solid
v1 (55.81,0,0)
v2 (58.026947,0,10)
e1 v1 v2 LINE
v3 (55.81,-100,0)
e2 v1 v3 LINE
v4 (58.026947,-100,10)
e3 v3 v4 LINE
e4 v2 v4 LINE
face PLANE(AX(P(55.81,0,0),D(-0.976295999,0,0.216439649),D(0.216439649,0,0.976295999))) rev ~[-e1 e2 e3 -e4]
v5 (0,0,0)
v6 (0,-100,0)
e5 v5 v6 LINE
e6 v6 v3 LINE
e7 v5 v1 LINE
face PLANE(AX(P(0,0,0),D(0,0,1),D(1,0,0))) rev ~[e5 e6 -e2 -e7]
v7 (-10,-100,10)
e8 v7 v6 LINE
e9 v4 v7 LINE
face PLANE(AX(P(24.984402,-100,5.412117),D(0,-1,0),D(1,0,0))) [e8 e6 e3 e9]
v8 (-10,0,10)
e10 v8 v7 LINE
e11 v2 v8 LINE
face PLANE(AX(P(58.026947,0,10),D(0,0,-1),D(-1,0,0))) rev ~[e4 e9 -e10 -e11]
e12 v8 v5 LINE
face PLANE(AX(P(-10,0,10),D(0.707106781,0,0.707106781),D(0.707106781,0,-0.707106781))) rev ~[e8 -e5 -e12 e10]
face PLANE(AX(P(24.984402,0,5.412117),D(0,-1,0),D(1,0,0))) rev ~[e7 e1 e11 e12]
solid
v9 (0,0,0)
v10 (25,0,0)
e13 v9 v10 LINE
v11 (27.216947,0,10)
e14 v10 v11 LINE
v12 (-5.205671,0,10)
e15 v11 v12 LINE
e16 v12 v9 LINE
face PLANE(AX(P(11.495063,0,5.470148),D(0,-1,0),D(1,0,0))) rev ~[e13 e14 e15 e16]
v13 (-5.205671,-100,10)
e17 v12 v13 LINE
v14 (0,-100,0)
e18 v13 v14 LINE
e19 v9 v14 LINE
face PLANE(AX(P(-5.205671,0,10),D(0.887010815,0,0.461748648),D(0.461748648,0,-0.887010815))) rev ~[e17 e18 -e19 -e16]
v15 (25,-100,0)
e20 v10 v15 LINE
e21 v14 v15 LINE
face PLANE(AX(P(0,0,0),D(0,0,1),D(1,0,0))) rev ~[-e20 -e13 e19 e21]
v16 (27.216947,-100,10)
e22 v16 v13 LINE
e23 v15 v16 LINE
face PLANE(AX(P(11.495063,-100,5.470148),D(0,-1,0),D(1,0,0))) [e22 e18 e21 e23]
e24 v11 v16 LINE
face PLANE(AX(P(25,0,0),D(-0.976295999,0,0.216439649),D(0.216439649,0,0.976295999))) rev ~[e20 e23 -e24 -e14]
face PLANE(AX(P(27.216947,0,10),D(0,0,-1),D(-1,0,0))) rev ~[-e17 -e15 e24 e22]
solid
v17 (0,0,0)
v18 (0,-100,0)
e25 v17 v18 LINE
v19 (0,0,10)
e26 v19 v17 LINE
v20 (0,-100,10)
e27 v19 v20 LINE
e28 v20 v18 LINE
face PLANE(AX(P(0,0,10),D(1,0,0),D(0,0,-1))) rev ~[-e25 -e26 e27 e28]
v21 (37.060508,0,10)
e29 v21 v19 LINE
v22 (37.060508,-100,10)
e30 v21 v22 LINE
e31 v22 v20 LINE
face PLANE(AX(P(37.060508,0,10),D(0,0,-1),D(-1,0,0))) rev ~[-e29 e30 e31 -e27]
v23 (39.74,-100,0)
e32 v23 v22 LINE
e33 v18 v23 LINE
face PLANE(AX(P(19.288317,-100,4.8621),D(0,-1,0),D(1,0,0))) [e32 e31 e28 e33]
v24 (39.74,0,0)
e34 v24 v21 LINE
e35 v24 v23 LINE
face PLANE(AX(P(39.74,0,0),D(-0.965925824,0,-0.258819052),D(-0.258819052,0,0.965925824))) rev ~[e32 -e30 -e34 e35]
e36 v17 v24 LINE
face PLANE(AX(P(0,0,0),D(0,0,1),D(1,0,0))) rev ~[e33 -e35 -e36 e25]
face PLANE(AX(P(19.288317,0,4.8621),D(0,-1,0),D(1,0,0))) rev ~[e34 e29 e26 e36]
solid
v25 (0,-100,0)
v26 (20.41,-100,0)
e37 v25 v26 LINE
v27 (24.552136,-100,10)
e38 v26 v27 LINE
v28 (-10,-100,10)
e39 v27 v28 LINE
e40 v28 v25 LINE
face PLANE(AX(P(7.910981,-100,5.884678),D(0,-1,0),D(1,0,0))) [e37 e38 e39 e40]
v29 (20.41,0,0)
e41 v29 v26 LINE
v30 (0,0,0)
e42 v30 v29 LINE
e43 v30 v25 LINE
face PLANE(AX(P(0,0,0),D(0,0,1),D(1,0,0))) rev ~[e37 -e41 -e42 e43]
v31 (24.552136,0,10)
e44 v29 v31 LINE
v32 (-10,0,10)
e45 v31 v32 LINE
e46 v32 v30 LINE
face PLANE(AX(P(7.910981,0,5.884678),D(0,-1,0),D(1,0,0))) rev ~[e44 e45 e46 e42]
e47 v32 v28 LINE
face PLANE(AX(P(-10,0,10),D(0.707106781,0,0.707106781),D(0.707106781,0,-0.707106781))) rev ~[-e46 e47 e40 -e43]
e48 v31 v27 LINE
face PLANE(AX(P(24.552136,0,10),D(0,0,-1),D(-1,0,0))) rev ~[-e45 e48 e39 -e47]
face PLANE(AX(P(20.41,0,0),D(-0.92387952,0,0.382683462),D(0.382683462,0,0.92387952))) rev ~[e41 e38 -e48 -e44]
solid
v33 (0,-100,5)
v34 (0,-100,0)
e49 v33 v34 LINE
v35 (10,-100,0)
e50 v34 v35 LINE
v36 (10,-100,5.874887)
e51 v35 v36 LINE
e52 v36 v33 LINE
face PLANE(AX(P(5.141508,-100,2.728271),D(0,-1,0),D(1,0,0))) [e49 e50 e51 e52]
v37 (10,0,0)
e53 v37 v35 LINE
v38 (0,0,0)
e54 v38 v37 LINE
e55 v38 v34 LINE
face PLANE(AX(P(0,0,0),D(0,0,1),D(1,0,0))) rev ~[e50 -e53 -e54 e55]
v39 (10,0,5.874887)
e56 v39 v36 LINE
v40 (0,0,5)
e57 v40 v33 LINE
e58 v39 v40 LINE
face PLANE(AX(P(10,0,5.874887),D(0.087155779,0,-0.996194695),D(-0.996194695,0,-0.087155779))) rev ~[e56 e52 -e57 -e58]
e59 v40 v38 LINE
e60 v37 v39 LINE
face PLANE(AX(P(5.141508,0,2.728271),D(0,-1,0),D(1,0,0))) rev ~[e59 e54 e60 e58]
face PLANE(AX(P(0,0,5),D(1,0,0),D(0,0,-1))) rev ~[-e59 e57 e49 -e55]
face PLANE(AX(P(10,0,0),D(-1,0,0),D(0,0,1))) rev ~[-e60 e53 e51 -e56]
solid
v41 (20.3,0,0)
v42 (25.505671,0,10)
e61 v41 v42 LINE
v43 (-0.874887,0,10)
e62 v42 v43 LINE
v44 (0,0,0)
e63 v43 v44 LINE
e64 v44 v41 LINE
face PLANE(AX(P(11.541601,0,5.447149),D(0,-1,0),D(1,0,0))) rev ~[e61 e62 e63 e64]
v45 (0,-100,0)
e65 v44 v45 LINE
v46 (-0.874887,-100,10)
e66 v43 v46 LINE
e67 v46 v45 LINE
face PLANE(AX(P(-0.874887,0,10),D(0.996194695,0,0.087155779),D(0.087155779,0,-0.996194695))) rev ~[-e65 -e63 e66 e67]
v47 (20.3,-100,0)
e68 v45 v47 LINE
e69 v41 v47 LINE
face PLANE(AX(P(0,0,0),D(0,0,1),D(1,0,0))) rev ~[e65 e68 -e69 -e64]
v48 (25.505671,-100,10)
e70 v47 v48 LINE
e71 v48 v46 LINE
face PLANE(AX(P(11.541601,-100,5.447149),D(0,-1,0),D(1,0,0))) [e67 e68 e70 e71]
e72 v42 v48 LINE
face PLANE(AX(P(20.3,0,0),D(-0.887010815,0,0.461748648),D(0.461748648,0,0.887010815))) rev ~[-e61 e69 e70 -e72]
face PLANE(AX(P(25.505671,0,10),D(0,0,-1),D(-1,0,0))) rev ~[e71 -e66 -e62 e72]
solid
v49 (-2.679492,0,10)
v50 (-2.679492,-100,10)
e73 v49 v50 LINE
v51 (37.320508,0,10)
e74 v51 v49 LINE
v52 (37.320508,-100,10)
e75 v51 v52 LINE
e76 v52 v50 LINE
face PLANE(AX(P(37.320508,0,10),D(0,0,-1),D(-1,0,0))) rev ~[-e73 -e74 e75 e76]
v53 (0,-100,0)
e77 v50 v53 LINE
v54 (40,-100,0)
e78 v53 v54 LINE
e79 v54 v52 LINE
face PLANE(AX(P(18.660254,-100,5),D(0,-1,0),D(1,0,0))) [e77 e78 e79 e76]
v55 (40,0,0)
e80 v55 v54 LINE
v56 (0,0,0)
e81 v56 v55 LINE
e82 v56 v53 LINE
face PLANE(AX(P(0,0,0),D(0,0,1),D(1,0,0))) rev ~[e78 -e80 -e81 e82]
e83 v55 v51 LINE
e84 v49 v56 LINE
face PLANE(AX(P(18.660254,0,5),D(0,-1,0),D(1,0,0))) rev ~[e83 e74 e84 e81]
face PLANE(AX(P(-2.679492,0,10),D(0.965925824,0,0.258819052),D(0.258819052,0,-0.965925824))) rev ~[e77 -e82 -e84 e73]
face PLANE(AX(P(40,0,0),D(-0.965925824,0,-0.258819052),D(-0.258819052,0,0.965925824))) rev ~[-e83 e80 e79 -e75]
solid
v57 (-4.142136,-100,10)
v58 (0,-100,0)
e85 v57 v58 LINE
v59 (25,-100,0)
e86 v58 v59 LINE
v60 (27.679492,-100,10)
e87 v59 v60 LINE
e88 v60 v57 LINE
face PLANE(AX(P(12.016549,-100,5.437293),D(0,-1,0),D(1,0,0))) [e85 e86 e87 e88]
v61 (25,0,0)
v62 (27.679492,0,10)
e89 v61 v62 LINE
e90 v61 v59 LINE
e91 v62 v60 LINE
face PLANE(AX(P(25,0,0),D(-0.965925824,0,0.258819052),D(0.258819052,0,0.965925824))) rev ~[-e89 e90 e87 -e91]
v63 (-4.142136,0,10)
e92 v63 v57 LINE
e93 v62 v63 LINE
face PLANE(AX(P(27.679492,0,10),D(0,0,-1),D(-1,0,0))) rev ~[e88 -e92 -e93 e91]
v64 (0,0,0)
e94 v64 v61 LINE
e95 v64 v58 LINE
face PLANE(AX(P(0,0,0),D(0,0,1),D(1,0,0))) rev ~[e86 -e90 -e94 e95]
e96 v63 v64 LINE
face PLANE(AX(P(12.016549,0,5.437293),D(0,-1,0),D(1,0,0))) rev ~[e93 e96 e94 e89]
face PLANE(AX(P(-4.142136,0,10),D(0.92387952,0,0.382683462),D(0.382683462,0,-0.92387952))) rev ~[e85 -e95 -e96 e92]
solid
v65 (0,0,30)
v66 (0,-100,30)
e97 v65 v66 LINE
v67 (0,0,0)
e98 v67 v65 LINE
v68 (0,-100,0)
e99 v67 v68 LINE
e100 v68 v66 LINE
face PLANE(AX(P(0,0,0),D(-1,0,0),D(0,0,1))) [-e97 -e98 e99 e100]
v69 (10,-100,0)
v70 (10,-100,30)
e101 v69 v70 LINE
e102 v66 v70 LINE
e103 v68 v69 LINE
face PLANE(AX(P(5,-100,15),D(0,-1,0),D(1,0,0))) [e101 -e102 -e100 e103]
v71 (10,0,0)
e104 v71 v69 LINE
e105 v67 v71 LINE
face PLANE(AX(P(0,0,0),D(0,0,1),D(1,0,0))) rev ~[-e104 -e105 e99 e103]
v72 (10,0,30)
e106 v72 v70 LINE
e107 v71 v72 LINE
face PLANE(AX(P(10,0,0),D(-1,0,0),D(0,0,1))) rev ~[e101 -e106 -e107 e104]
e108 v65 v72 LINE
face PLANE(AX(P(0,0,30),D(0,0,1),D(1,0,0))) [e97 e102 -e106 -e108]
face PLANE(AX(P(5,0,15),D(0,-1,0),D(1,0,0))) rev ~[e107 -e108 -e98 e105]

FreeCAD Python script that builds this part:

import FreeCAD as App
import Part
import Sketcher
from FreeCAD import Vector
Q = App.Units.Quantity

doc = App.newDocument("Part")
body = doc.addObject("PartDesign::Body", "Body")

sketch1 = doc.addObject("Sketcher::SketchObject", "Sketch")
body.addObject(sketch1)
sketch1.AttachmentSupport = (doc.XZ_Plane, [""])
sketch1.MapMode = "FlatFace"
sketch1.addGeometry(Part.LineSegment(Vector(0, 30, 0), Vector(0, 0, 0)), False)
sketch1.addGeometry(Part.LineSegment(Vector(0, 0, 0), Vector(10, 0, 0)), False)
sketch1.addGeometry(Part.LineSegment(Vector(10, 0, 0), Vector(10, 30, 0)), False)
sketch1.addGeometry(Part.LineSegment(Vector(10, 30, 0), Vector(0, 30, 0)), False)
sketch1.addConstraint(Sketcher.Constraint("Coincident", 0, 2, 1, 1))
sketch1.addConstraint(Sketcher.Constraint("Coincident", 1, 2, 2, 1))
sketch1.addConstraint(Sketcher.Constraint("Coincident", 2, 2, 3, 1))
sketch1.addConstraint(Sketcher.Constraint("Coincident", 3, 2, 0, 1))
sketch1.addConstraint(Sketcher.Constraint("Vertical", 0))
sketch1.addConstraint(Sketcher.Constraint("Horizontal", 1))
sketch1.addConstraint(Sketcher.Constraint("Vertical", 2))
sketch1.addConstraint(Sketcher.Constraint("Horizontal", 3))
sketch1.addConstraint(Sketcher.Constraint("Coincident", 0, 2, -1, 1))
sketch1.addConstraint(Sketcher.Constraint("DistanceX", 1, 1, 1, 2, Q("10 mm")))
sketch1.addConstraint(Sketcher.Constraint("DistanceY", 0, 2, 0, 1, Q("30 mm")))
pad1 = doc.addObject("PartDesign::Pad", "Pad")
body.addObject(pad1)
pad1.Profile = sketch1
pad1.Length = 100
body2 = doc.addObject("PartDesign::Body", "Body001")

sketch2 = doc.addObject("Sketcher::SketchObject", "Sketch001")
body2.addObject(sketch2)
sketch2.AttachmentSupport = (doc.getObject("XZ_Plane001"), [""])
sketch2.MapMode = "FlatFace"
sketch2.addGeometry(Part.LineSegment(Vector(0, 10, 0), Vector(0, 0, 0)), False)
sketch2.addGeometry(Part.LineSegment(Vector(0, 0, 0), Vector(40, 0, 0)), False)
sketch2.addGeometry(Part.LineSegment(Vector(40, 0, 0), Vector(37, 10, 0)), False)
sketch2.addGeometry(Part.LineSegment(Vector(37, 10, 0), Vector(0, 10, 0)), False)
sketch2.addConstraint(Sketcher.Constraint("Coincident", 0, 2, 1, 1))
sketch2.addConstraint(Sketcher.Constraint("Coincident", 1, 2, 2, 1))
sketch2.addConstraint(Sketcher.Constraint("Coincident", 2, 2, 3, 1))
sketch2.addConstraint(Sketcher.Constraint("Coincident", 3, 2, 0, 1))
sketch2.addConstraint(Sketcher.Constraint("Vertical", 0))
sketch2.addConstraint(Sketcher.Constraint("Horizontal", 1))
sketch2.addConstraint(Sketcher.Constraint("Horizontal", 3))
sketch2.addConstraint(Sketcher.Constraint("Coincident", 0, 2, -1, 1))
sketch2.addConstraint(Sketcher.Constraint("DistanceY", 0, 2, 0, 1, Q("10 mm")))
sketch2.addConstraint(Sketcher.Constraint("Angle", 2, Q("105 deg")))
sketch2.addConstraint(Sketcher.Constraint("DistanceX", 1, 1, 1, 2, Q("39.74 mm")))
pad2 = doc.addObject("PartDesign::Pad", "Pad001")
body2.addObject(pad2)
pad2.Profile = sketch2
pad2.Length = 100
body3 = doc.addObject("PartDesign::Body", "Body002")

sketch3 = doc.addObject("Sketcher::SketchObject", "Sketch002")
body3.addObject(sketch3)
sketch3.AttachmentSupport = (doc.getObject("XZ_Plane002"), [""])
sketch3.MapMode = "FlatFace"
sketch3.addGeometry(Part.LineSegment(Vector(-4, 10, 0), Vector(0, 0, 0)), False)
sketch3.addGeometry(Part.LineSegment(Vector(0, 0, 0), Vector(25, 0, 0)), False)
sketch3.addGeometry(Part.LineSegment(Vector(25, 0, 0), Vector(28, 10, 0)), False)
sketch3.addGeometry(Part.LineSegment(Vector(28, 10, 0), Vector(-4, 10, 0)), False)
sketch3.addConstraint(Sketcher.Constraint("Coincident", 0, 2, 1, 1))
sketch3.addConstraint(Sketcher.Constraint("Coincident", 1, 2, 2, 1))
sketch3.addConstraint(Sketcher.Constraint("Coincident", 2, 2, 3, 1))
sketch3.addConstraint(Sketcher.Constraint("Coincident", 3, 2, 0, 1))
sketch3.addConstraint(Sketcher.Constraint("Horizontal", 1))
sketch3.addConstraint(Sketcher.Constraint("Horizontal", 3))
sketch3.addConstraint(Sketcher.Constraint("Coincident", 0, 2, -1, 1))
sketch3.addConstraint(Sketcher.Constraint("DistanceX", 1, 1, 1, 2, Q("25 mm")))
sketch3.addConstraint(Sketcher.Constraint("Angle", 2, Q("75 deg")))
sketch3.addConstraint(Sketcher.Constraint("DistanceY", -1, 1, 2, 2, Q("10 mm")))
sketch3.addConstraint(Sketcher.Constraint("Angle", 0, Q("-67.499998 deg")))
pad3 = doc.addObject("PartDesign::Pad", "Pad002")
body3.addObject(pad3)
pad3.Profile = sketch3
pad3.Length = 100
body4 = doc.addObject("PartDesign::Body", "Body003")

sketch4 = doc.addObject("Sketcher::SketchObject", "Sketch003")
body4.addObject(sketch4)
sketch4.AttachmentSupport = (doc.getObject("XZ_Plane003"), [""])
sketch4.MapMode = "FlatFace"
sketch4.addGeometry(Part.LineSegment(Vector(-3, 10, 0), Vector(0, 0, 0)), False)
sketch4.addGeometry(Part.LineSegment(Vector(0, 0, 0), Vector(40, 0, 0)), False)
sketch4.addGeometry(Part.LineSegment(Vector(40, 0, 0), Vector(37, 10, 0)), False)
sketch4.addGeometry(Part.LineSegment(Vector(37, 10, 0), Vector(-3, 10, 0)), False)
sketch4.addConstraint(Sketcher.Constraint("Coincident", 0, 2, 1, 1))
sketch4.addConstraint(Sketcher.Constraint("Coincident", 1, 2, 2, 1))
sketch4.addConstraint(Sketcher.Constraint("Coincident", 2, 2, 3, 1))
sketch4.addConstraint(Sketcher.Constraint("Coincident", 3, 2, 0, 1))
sketch4.addConstraint(Sketcher.Constraint("Horizontal", 1))
sketch4.addConstraint(Sketcher.Constraint("Horizontal", 3))
sketch4.addConstraint(Sketcher.Constraint("Coincident", 0, 2, -1, 1))
sketch4.addConstraint(Sketcher.Constraint("Parallel", 0, 2))
sketch4.addConstraint(Sketcher.Constraint("DistanceX", 1, 1, 1, 2, Q("40 mm")))
sketch4.addConstraint(Sketcher.Constraint("Angle", 0, Q("-75 deg")))
sketch4.addConstraint(Sketcher.Constraint("DistanceY", -1, 1, 2, 2, Q("10 mm")))
pad4 = doc.addObject("PartDesign::Pad", "Pad003")
body4.addObject(pad4)
pad4.Profile = sketch4
pad4.Length = 100
body5 = doc.addObject("PartDesign::Body", "Body004")

sketch5 = doc.addObject("Sketcher::SketchObject", "Sketch004")
body5.addObject(sketch5)
sketch5.AttachmentSupport = (doc.getObject("XZ_Plane004"), [""])
sketch5.MapMode = "FlatFace"
sketch5.addGeometry(Part.LineSegment(Vector(-10, 10, 0), Vector(0, 0, 0)), False)
sketch5.addGeometry(Part.LineSegment(Vector(0, 0, 0), Vector(20, 0, 0)), False)
sketch5.addGeometry(Part.LineSegment(Vector(20, 0, 0), Vector(25, 10, 0)), False)
sketch5.addGeometry(Part.LineSegment(Vector(25, 10, 0), Vector(-10, 10, 0)), False)
sketch5.addConstraint(Sketcher.Constraint("Coincident", 0, 2, 1, 1))
sketch5.addConstraint(Sketcher.Constraint("Coincident", 1, 2, 2, 1))
sketch5.addConstraint(Sketcher.Constraint("Coincident", 2, 2, 3, 1))
sketch5.addConstraint(Sketcher.Constraint("Coincident", 3, 2, 0, 1))
sketch5.addConstraint(Sketcher.Constraint("Horizontal", 1))
sketch5.addConstraint(Sketcher.Constraint("Horizontal", 3))
sketch5.addConstraint(Sketcher.Constraint("Coincident", 0, 2, -1, 1))
sketch5.addConstraint(Sketcher.Constraint("Angle", 0, Q("-45 deg")))
sketch5.addConstraint(Sketcher.Constraint("DistanceY", -1, 1, 2, 2, Q("10 mm")))
sketch5.addConstraint(Sketcher.Constraint("Angle", 2, Q("67.499998 deg")))
sketch5.addConstraint(Sketcher.Constraint("DistanceX", 1, 1, 1, 2, Q("20.41 mm")))
pad5 = doc.addObject("PartDesign::Pad", "Pad004")
body5.addObject(pad5)
pad5.Profile = sketch5
pad5.Length = 100
body6 = doc.addObject("PartDesign::Body", "Body005")

sketch6 = doc.addObject("Sketcher::SketchObject", "Sketch005")
body6.addObject(sketch6)
sketch6.AttachmentSupport = (doc.getObject("XZ_Plane005"), [""])
sketch6.MapMode = "FlatFace"
sketch6.addGeometry(Part.LineSegment(Vector(-10, 10, 0), Vector(0, 0, 0)), False)
sketch6.addGeometry(Part.LineSegment(Vector(0, 0, 0), Vector(56, 0, 0)), False)
sketch6.addGeometry(Part.LineSegment(Vector(56, 0, 0), Vector(58, 10, 0)), False)
sketch6.addGeometry(Part.LineSegment(Vector(58, 10, 0), Vector(-10, 10, 0)), False)
sketch6.addConstraint(Sketcher.Constraint("Coincident", 0, 2, 1, 1))
sketch6.addConstraint(Sketcher.Constraint("Coincident", 1, 2, 2, 1))
sketch6.addConstraint(Sketcher.Constraint("Coincident", 2, 2, 3, 1))
sketch6.addConstraint(Sketcher.Constraint("Coincident", 3, 2, 0, 1))
sketch6.addConstraint(Sketcher.Constraint("Horizontal", 1))
sketch6.addConstraint(Sketcher.Constraint("Horizontal", 3))
sketch6.addConstraint(Sketcher.Constraint("Coincident", 0, 2, -1, 1))
sketch6.addConstraint(Sketcher.Constraint("Angle", 0, Q("-45 deg")))
sketch6.addConstraint(Sketcher.Constraint("DistanceY", -1, 1, 2, 2, Q("10 mm")))
sketch6.addConstraint(Sketcher.Constraint("Angle", 2, Q("77.499998 deg")))
sketch6.addConstraint(Sketcher.Constraint("DistanceX", 1, 1, 1, 2, Q("55.81 mm")))
pad6 = doc.addObject("PartDesign::Pad", "Pad005")
body6.addObject(pad6)
pad6.Profile = sketch6
pad6.Length = 100
body7 = doc.addObject("PartDesign::Body", "Body006")

sketch7 = doc.addObject("Sketcher::SketchObject", "Sketch006")
body7.addObject(sketch7)
sketch7.AttachmentSupport = (doc.getObject("XZ_Plane006"), [""])
sketch7.MapMode = "FlatFace"
sketch7.addGeometry(Part.LineSegment(Vector(-5, 10, 0), Vector(0, 0, 0)), False)
sketch7.addGeometry(Part.LineSegment(Vector(0, 0, 0), Vector(25, 0, 0)), False)
sketch7.addGeometry(Part.LineSegment(Vector(25, 0, 0), Vector(27, 10, 0)), False)
sketch7.addGeometry(Part.LineSegment(Vector(27, 10, 0), Vector(-5, 10, 0)), False)
sketch7.addConstraint(Sketcher.Constraint("Coincident", 0, 2, 1, 1))
sketch7.addConstraint(Sketcher.Constraint("Coincident", 1, 2, 2, 1))
sketch7.addConstraint(Sketcher.Constraint("Coincident", 2, 2, 3, 1))
sketch7.addConstraint(Sketcher.Constraint("Coincident", 3, 2, 0, 1))
sketch7.addConstraint(Sketcher.Constraint("Horizontal", 1))
sketch7.addConstraint(Sketcher.Constraint("Horizontal", 3))
sketch7.addConstraint(Sketcher.Constraint("Coincident", 0, 2, -1, 1))
sketch7.addConstraint(Sketcher.Constraint("DistanceX", 1, 1, 1, 2, Q("25 mm")))
sketch7.addConstraint(Sketcher.Constraint("DistanceY", -1, 1, 2, 2, Q("10 mm")))
sketch7.addConstraint(Sketcher.Constraint("Angle", 0, Q("-62.499998 deg")))
sketch7.addConstraint(Sketcher.Constraint("Angle", 2, Q("77.499998 deg")))
pad7 = doc.addObject("PartDesign::Pad", "Pad006")
body7.addObject(pad7)
pad7.Profile = sketch7
pad7.Length = 100
body8 = doc.addObject("PartDesign::Body", "Body007")

sketch8 = doc.addObject("Sketcher::SketchObject", "Sketch007")
body8.addObject(sketch8)
sketch8.AttachmentSupport = (doc.getObject("XZ_Plane007"), [""])
sketch8.MapMode = "FlatFace"
sketch8.addGeometry(Part.LineSegment(Vector(-1, 10, 0), Vector(0, 0, 0)), False)
sketch8.addGeometry(Part.LineSegment(Vector(0, 0, 0), Vector(20, 0, 0)), False)
sketch8.addGeometry(Part.LineSegment(Vector(20, 0, 0), Vector(26, 10, 0)), False)
sketch8.addGeometry(Part.LineSegment(Vector(26, 10, 0), Vector(-1, 10, 0)), False)
sketch8.addConstraint(Sketcher.Constraint("Coincident", 0, 2, 1, 1))
sketch8.addConstraint(Sketcher.Constraint("Coincident", 1, 2, 2, 1))
sketch8.addConstraint(Sketcher.Constraint("Coincident", 2, 2, 3, 1))
sketch8.addConstraint(Sketcher.Constraint("Coincident", 3, 2, 0, 1))
sketch8.addConstraint(Sketcher.Constraint("Horizontal", 1))
sketch8.addConstraint(Sketcher.Constraint("Horizontal", 3))
sketch8.addConstraint(Sketcher.Constraint("Coincident", 0, 2, -1, 1))
sketch8.addConstraint(Sketcher.Constraint("Angle", 0, Q("-84.999998 deg")))
sketch8.addConstraint(Sketcher.Constraint("DistanceX", 1, 1, 1, 2, Q("20.3 mm")))
sketch8.addConstraint(Sketcher.Constraint("DistanceY", -1, 1, 2, 2, Q("10 mm")))
sketch8.addConstraint(Sketcher.Constraint("Angle", 2, Q("62.499998 deg")))
pad8 = doc.addObject("PartDesign::Pad", "Pad007")
body8.addObject(pad8)
pad8.Profile = sketch8
pad8.Length = 100
body9 = doc.addObject("PartDesign::Body", "Body008")

sketch9 = doc.addObject("Sketcher::SketchObject", "Sketch008")
body9.addObject(sketch9)
sketch9.AttachmentSupport = (doc.getObject("XZ_Plane008"), [""])
sketch9.MapMode = "FlatFace"
sketch9.addGeometry(Part.LineSegment(Vector(0, 5, 0), Vector(0, 0, 0)), False)
sketch9.addGeometry(Part.LineSegment(Vector(0, 0, 0), Vector(10, 0, 0)), False)
sketch9.addGeometry(Part.LineSegment(Vector(10, 0, 0), Vector(10, 6, 0)), False)
sketch9.addGeometry(Part.LineSegment(Vector(10, 6, 0), Vector(0, 5, 0)), False)
sketch9.addConstraint(Sketcher.Constraint("Coincident", 0, 2, 1, 1))
sketch9.addConstraint(Sketcher.Constraint("Coincident", 1, 2, 2, 1))
sketch9.addConstraint(Sketcher.Constraint("Coincident", 2, 2, 3, 1))
sketch9.addConstraint(Sketcher.Constraint("Coincident", 3, 2, 0, 1))
sketch9.addConstraint(Sketcher.Constraint("Vertical", 0))
sketch9.addConstraint(Sketcher.Constraint("Horizontal", 1))
sketch9.addConstraint(Sketcher.Constraint("Vertical", 2))
sketch9.addConstraint(Sketcher.Constraint("Coincident", 0, 2, -1, 1))
sketch9.addConstraint(Sketcher.Constraint("DistanceX", 1, 1, 1, 2, Q("10 mm")))
sketch9.addConstraint(Sketcher.Constraint("DistanceY", 0, 2, 0, 1, Q("5 mm")))
sketch9.addConstraint(Sketcher.Constraint("Angle", 3, Q("-174.999998 deg")))
pad9 = doc.addObject("PartDesign::Pad", "Pad008")
body9.addObject(pad9)
pad9.Profile = sketch9
pad9.Length = 100

doc.recompute()
